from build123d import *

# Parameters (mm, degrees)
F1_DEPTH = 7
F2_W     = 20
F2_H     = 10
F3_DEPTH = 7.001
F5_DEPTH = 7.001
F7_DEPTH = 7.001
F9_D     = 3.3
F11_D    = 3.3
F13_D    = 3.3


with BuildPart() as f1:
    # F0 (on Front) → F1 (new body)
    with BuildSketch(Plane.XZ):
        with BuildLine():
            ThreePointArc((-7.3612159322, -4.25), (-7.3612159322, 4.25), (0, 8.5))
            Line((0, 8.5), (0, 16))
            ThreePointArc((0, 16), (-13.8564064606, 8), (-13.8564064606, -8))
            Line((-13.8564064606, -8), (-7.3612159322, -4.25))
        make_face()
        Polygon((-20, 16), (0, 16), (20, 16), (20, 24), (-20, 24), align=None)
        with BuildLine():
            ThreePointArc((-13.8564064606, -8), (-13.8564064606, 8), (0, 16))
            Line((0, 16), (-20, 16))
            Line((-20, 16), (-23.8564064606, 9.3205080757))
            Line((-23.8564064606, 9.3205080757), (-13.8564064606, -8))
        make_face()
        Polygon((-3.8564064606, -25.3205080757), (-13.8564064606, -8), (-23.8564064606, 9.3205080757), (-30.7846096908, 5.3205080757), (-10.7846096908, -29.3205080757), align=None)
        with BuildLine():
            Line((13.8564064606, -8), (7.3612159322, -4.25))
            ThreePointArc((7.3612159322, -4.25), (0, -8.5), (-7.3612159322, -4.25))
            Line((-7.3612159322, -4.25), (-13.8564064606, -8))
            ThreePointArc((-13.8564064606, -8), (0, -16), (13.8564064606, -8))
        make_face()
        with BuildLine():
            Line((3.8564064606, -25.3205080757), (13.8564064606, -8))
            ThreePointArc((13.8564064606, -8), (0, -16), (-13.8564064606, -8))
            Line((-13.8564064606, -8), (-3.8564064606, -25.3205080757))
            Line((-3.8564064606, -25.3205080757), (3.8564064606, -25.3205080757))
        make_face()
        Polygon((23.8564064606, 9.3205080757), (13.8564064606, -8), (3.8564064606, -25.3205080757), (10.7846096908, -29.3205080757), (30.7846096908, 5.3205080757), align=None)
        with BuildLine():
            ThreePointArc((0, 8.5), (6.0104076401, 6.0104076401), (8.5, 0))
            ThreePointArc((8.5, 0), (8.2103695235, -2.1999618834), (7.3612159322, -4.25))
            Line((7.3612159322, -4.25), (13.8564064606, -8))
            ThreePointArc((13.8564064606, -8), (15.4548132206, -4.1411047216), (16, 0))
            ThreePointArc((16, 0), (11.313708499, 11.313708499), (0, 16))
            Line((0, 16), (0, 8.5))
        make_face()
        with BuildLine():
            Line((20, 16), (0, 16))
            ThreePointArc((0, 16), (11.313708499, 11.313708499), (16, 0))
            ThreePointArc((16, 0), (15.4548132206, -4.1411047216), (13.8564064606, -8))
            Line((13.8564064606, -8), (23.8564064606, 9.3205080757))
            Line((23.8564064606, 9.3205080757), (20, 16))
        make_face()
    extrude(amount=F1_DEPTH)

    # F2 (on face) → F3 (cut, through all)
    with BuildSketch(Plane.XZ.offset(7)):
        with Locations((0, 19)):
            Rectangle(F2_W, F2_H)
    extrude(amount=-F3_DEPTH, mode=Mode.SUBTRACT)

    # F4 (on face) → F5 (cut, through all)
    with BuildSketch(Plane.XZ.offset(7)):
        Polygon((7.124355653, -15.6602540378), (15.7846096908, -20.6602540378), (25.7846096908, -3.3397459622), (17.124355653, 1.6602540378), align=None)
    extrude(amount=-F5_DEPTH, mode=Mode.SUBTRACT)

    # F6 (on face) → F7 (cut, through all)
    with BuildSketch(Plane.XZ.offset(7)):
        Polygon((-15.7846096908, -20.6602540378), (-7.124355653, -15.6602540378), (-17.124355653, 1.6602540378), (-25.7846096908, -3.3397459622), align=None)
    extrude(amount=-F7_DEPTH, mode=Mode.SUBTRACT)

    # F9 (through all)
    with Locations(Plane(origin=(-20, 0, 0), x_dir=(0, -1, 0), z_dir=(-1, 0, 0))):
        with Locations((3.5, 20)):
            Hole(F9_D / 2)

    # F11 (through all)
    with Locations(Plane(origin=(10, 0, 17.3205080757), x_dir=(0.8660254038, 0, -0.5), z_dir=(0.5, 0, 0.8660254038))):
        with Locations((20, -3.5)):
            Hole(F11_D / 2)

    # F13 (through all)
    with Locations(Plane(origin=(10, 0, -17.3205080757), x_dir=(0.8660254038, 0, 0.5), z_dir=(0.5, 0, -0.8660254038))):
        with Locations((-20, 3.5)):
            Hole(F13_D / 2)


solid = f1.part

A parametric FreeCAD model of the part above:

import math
import FreeCAD as App
import Part
import Sketcher

V = App.Vector
Q = App.Units.Quantity

doc = App.newDocument("Part")
body = doc.addObject("PartDesign::Body", "Body")

# Sketch on XZ plane
sketch1 = doc.addObject("Sketcher::SketchObject", "Sketch")
body.addObject(sketch1)
sketch1.AttachmentSupport = (doc.XZ_Plane, [""])
sketch1.MapMode = "FlatFace"
sketch1.addGeometry(Part.LineSegment(V(20, 16, 0), V(20, 24, 0)), False)
sketch1.addGeometry(Part.LineSegment(V(20, 24, 0), V(-20, 24, 0)), False)
sketch1.addGeometry(Part.LineSegment(V(-20, 24, 0), V(-20, 16, 0)), False)
sketch1.addGeometry(Part.LineSegment(V(-20, 16, 0), V(-23.9, 9.3, 0)), False)
sketch1.addGeometry(Part.LineSegment(V(-23.9, 9.3, 0), V(-30.8, 5.3, 0)), False)
sketch1.addGeometry(Part.LineSegment(V(-30.8, 5.3, 0), V(-10.8, -29.3, 0)), False)
sketch1.addGeometry(Part.LineSegment(V(-10.8, -29.3, 0), V(-3.9, -25.3, 0)), False)
sketch1.addGeometry(Part.LineSegment(V(-3.9, -25.3, 0), V(3.9, -25.3, 0)), False)
sketch1.addGeometry(Part.LineSegment(V(3.9, -25.3, 0), V(10.8, -29.3, 0)), False)
sketch1.addGeometry(Part.LineSegment(V(10.8, -29.3, 0), V(30.8, 5.3, 0)), False)
sketch1.addGeometry(Part.LineSegment(V(30.8, 5.3, 0), V(23.9, 9.3, 0)), False)
sketch1.addGeometry(Part.LineSegment(V(23.9, 9.3, 0), V(20, 16, 0)), False)
sketch1.addGeometry(Part.ArcOfCircle(Part.Circle(V(0, 0, 0), V(0, 0, 1), 8.5), math.radians(90), math.radians(210)), False)
sketch1.addGeometry(Part.ArcOfCircle(Part.Circle(V(0, 0, 0), V(0, 0, 1), 8.5), math.radians(0), math.radians(90)), False)
sketch1.addGeometry(Part.ArcOfCircle(Part.Circle(V(0, 0, 0), V(0, 0, 1), 8.5), math.radians(-30), math.radians(0)), False)
sketch1.addGeometry(Part.ArcOfCircle(Part.Circle(V(0, 0, 0), V(0, 0, 1), 8.5), math.radians(-150), math.radians(-30)), False)
sketch1.addConstraint(Sketcher.Constraint("Coincident", 0, 2, 1, 1))
sketch1.addConstraint(Sketcher.Constraint("Coincident", 1, 2, 2, 1))
sketch1.addConstraint(Sketcher.Constraint("Coincident", 2, 2, 3, 1))
sketch1.addConstraint(Sketcher.Constraint("Coincident", 3, 2, 4, 1))
sketch1.addConstraint(Sketcher.Constraint("Coincident", 4, 2, 5, 1))
sketch1.addConstraint(Sketcher.Constraint("Coincident", 5, 2, 6, 1))
sketch1.addConstraint(Sketcher.Constraint("Coincident", 6, 2, 7, 1))
sketch1.addConstraint(Sketcher.Constraint("Coincident", 7, 2, 8, 1))
sketch1.addConstraint(Sketcher.Constraint("Coincident", 8, 2, 9, 1))
sketch1.addConstraint(Sketcher.Constraint("Coincident", 9, 2, 10, 1))
sketch1.addConstraint(Sketcher.Constraint("Coincident", 10, 2, 11, 1))
sketch1.addConstraint(Sketcher.Constraint("Coincident", 11, 2, 0, 1))
sketch1.addConstraint(Sketcher.Constraint("Tangent", 12, 1, 13, 2))
sketch1.addConstraint(Sketcher.Constraint("Tangent", 13, 1, 14, 2))
sketch1.addConstraint(Sketcher.Constraint("Tangent", 14, 1, 15, 2))
sketch1.addConstraint(Sketcher.Constraint("Tangent", 15, 1, 12, 2))
sketch1.addConstraint(Sketcher.Constraint("Vertical", 0))
sketch1.addConstraint(Sketcher.Constraint("Horizontal", 1))
sketch1.addConstraint(Sketcher.Constraint("Vertical", 2))
sketch1.addConstraint(Sketcher.Constraint("Horizontal", 7))
sketch1.addConstraint(Sketcher.Constraint("Coincident", 12, 3, -1, 1))
sketch1.addConstraint(Sketcher.Constraint("Equal", 12, 13))
sketch1.addConstraint(Sketcher.Constraint("Symmetric", 5, 2, 8, 2, -2))
sketch1.addConstraint(Sketcher.Constraint("Symmetric", 4, 2, 9, 2, -2))
sketch1.addConstraint(Sketcher.Constraint("Symmetric", 3, 2, 10, 2, -2))
sketch1.addConstraint(Sketcher.Constraint("Symmetric", 2, 2, 11, 2, -2))
sketch1.addConstraint(Sketcher.Constraint("PointOnObject", 12, 1, -2))
sketch1.addConstraint(Sketcher.Constraint("PointOnObject", 13, 1, -1))
sketch1.addConstraint(Sketcher.Constraint("Perpendicular", 4, 5))
sketch1.addConstraint(Sketcher.Constraint("Perpendicular", 5, 6))
sketch1.addConstraint(Sketcher.Constraint("Perpendicular", 3, 8))
sketch1.addConstraint(Sketcher.Constraint("Perpendicular", 8, 9))
sketch1.addConstraint(Sketcher.Constraint("Horizontal", 14, 1, 15, 1))
sketch1.addConstraint(Sketcher.Constraint("Equal", 4, 6))
sketch1.addConstraint(Sketcher.Constraint("Radius", 12, Q("8.5 mm")))
sketch1.addConstraint(Sketcher.Constraint("DistanceX", 1, 2, 1, 1, Q("40 mm")))
sketch1.addConstraint(Sketcher.Constraint("DistanceY", 0, 1, 0, 2, Q("8 mm")))
sketch1.addConstraint(Sketcher.Constraint("Angle", 3, Q("-120 deg")))
sketch1.addConstraint(Sketcher.Constraint("Distance", 4, Q("8 mm")))
sketch1.addConstraint(Sketcher.Constraint("Distance", 5, Q("40 mm")))
sketch1.addConstraint(Sketcher.Constraint("DistanceY", -1, 1, 0, 2, Q("24 mm")))
sketch1.addConstraint(Sketcher.Constraint("DistanceY", 14, 1, -1, 1, Q("4.25 mm")))
sketch1.addConstraint(Sketcher.Constraint("DistanceX", 7, 1, 7, 2, Q("7.712813 mm")))
pad1 = doc.addObject("PartDesign::Pad", "Pad")
body.addObject(pad1)
pad1.Profile = sketch1
pad1.Length = 7

# Sketch on XZ plane
sketch2 = doc.addObject("Sketcher::SketchObject", "Sketch001")
body.addObject(sketch2)
sketch2.AttachmentSupport = (doc.XZ_Plane, [""])
sketch2.MapMode = "FlatFace"
sketch2.AttachmentOffset = App.Placement(V(0, 0, 7), App.Rotation())
sketch2.addGeometry(Part.LineSegment(V(-10, 24, 0), V(-10, 14, 0)), False)
sketch2.addGeometry(Part.LineSegment(V(-10, 14, 0), V(10, 14, 0)), False)
sketch2.addGeometry(Part.LineSegment(V(10, 14, 0), V(10, 24, 0)), False)
sketch2.addGeometry(Part.LineSegment(V(10, 24, 0), V(-10, 24, 0)), False)
sketch2.addConstraint(Sketcher.Constraint("Coincident", 0, 2, 1, 1))
sketch2.addConstraint(Sketcher.Constraint("Coincident", 1, 2, 2, 1))
sketch2.addConstraint(Sketcher.Constraint("Coincident", 2, 2, 3, 1))
sketch2.addConstraint(Sketcher.Constraint("Coincident", 3, 2, 0, 1))
sketch2.addConstraint(Sketcher.Constraint("Vertical", 0))
sketch2.addConstraint(Sketcher.Constraint("Horizontal", 1))
sketch2.addConstraint(Sketcher.Constraint("Vertical", 2))
sketch2.addConstraint(Sketcher.Constraint("Horizontal", 3))
sketch2.addConstraint(Sketcher.Constraint("DistanceX", 1, 1, 1, 2, Q("20 mm")))
sketch2.addConstraint(Sketcher.Constraint("DistanceY", 0, 2, 0, 1, Q("10 mm")))
sketch2.addConstraint(Sketcher.Constraint("DistanceX", 0, 2, -1, 1, Q("10 mm")))
sketch2.addConstraint(Sketcher.Constraint("DistanceY", -1, 1, 0, 2, Q("14 mm")))
pocket1 = doc.addObject("PartDesign::Pocket", "Pocket")
body.addObject(pocket1)
pocket1.Profile = sketch2
pocket1.Type = "ThroughAll"

# Sketch on XZ plane
sketch3 = doc.addObject("Sketcher::SketchObject", "Sketch002")
body.addObject(sketch3)
sketch3.AttachmentSupport = (doc.XZ_Plane, [""])
sketch3.MapMode = "FlatFace"
sketch3.AttachmentOffset = App.Placement(V(0, 0, 7), App.Rotation())
sketch3.addGeometry(Part.LineSegment(V(7, -16, 0), V(16, -21, 0)), False)
sketch3.addGeometry(Part.LineSegment(V(16, -21, 0), V(26, -3, 0)), False)
sketch3.addGeometry(Part.LineSegment(V(26, -3, 0), V(17, 2, 0)), False)
sketch3.addGeometry(Part.LineSegment(V(17, 2, 0), V(7, -16, 0)), False)
sketch3.addConstraint(Sketcher.Constraint("Coincident", 0, 2, 1, 1))
sketch3.addConstraint(Sketcher.Constraint("Coincident", 1, 2, 2, 1))
sketch3.addConstraint(Sketcher.Constraint("Coincident", 2, 2, 3, 1))
sketch3.addConstraint(Sketcher.Constraint("Coincident", 3, 2, 0, 1))
sketch3.addConstraint(Sketcher.Constraint("Perpendicular", 0, 1))
sketch3.addConstraint(Sketcher.Constraint("Perpendicular", 1, 2))
sketch3.addConstraint(Sketcher.Constraint("Perpendicular", 2, 3))
sketch3.addConstraint(Sketcher.Constraint("Angle", 0, Q("-30 deg")))
sketch3.addConstraint(Sketcher.Constraint("Distance", 0, Q("10 mm")))
sketch3.addConstraint(Sketcher.Constraint("Distance", 1, Q("20 mm")))
sketch3.addConstraint(Sketcher.Constraint("DistanceX", -1, 1, 0, 2, Q("15.78461 mm")))
sketch3.addConstraint(Sketcher.Constraint("DistanceY", 0, 2, -1, 1, Q("20.660254 mm")))
pocket2 = doc.addObject("PartDesign::Pocket", "Pocket001")
body.addObject(pocket2)
pocket2.Profile = sketch3
pocket2.Type = "ThroughAll"

# Sketch on XZ plane
sketch4 = doc.addObject("Sketcher::SketchObject", "Sketch003")
body.addObject(sketch4)
sketch4.AttachmentSupport = (doc.XZ_Plane, [""])
sketch4.MapMode = "FlatFace"
sketch4.AttachmentOffset = App.Placement(V(0, 0, 7), App.Rotation())
sketch4.addGeometry(Part.LineSegment(V(-16, -21, 0), V(-7, -16, 0)), False)
sketch4.addGeometry(Part.LineSegment(V(-7, -16, 0), V(-17, 2, 0)), False)
sketch4.addGeometry(Part.LineSegment(V(-17, 2, 0), V(-26, -3, 0)), False)
sketch4.addGeometry(Part.LineSegment(V(-26, -3, 0), V(-16, -21, 0)), False)
sketch4.addConstraint(Sketcher.Constraint("Coincident", 0, 2, 1, 1))
sketch4.addConstraint(Sketcher.Constraint("Coincident", 1, 2, 2, 1))
sketch4.addConstraint(Sketcher.Constraint("Coincident", 2, 2, 3, 1))
sketch4.addConstraint(Sketcher.Constraint("Coincident", 3, 2, 0, 1))
sketch4.addConstraint(Sketcher.Constraint("Perpendicular", 0, 1))
sketch4.addConstraint(Sketcher.Constraint("Perpendicular", 1, 2))
sketch4.addConstraint(Sketcher.Constraint("Perpendicular", 2, 3))
sketch4.addConstraint(Sketcher.Constraint("Angle", 0, Q("30 deg")))
sketch4.addConstraint(Sketcher.Constraint("Distance", 0, Q("10 mm")))
sketch4.addConstraint(Sketcher.Constraint("Distance", 1, Q("20 mm")))
sketch4.addConstraint(Sketcher.Constraint("DistanceX", 2, 2, -1, 1, Q("25.78461 mm")))
sketch4.addConstraint(Sketcher.Constraint("DistanceY", 0, 2, -1, 1, Q("15.660254 mm")))
pocket3 = doc.addObject("PartDesign::Pocket", "Pocket002")
body.addObject(pocket3)
pocket3.Profile = sketch4
pocket3.Type = "ThroughAll"

# Sketch on YZ plane
sketch5 = doc.addObject("Sketcher::SketchObject", "Sketch004")
body.addObject(sketch5)
sketch5.AttachmentSupport = (doc.YZ_Plane, [""])
sketch5.MapMode = "FlatFace"
sketch5.AttachmentOffset = App.Placement(V(0, 0, -20), App.Rotation())
sketch5.addGeometry(Part.Circle(V(-3.5, 20, 0), V(0, 0, 1), 1.6), False)
sketch5.addConstraint(Sketcher.Constraint("Diameter", 0, Q("3.3 mm")))
sketch5.addConstraint(Sketcher.Constraint("DistanceY", -1, 1, 0, 3, Q("20 mm")))
sketch5.addConstraint(Sketcher.Constraint("DistanceX", 0, 3, -1, 1, Q("3.5 mm")))
doc.recompute()
hole = doc.addObject("PartDesign::Hole", "Hole")
body.addObject(hole)
hole.Profile = sketch5
hole.ThreadType = "None"
hole.Diameter = 3.3
hole.DepthType = "ThroughAll"
hole.Reversed = True

# Sketch on an angled plane
sketch6 = doc.addObject("Sketcher::SketchObject", "Sketch005")
body.addObject(sketch6)
sketch6.Placement = App.Placement(V(10, 0, 17.320508), App.Rotation(V(0.866025404, 0, -0.5), V(0, 1, 0), V(0.5, 0, 0.866025404), "ZXY"))
sketch6.addGeometry(Part.Circle(V(20, -3.5, 0), V(0, 0, 1), 1.6), False)
sketch6.addConstraint(Sketcher.Constraint("Diameter", 0, Q("3.3 mm")))
sketch6.addConstraint(Sketcher.Constraint("DistanceX", -1, 1, 0, 3, Q("20 mm")))
sketch6.addConstraint(Sketcher.Constraint("DistanceY", 0, 3, -1, 1, Q("3.5 mm")))
doc.recompute()
hole2 = doc.addObject("PartDesign::Hole", "Hole001")
body.addObject(hole2)
hole2.Profile = sketch6
hole2.ThreadType = "None"
hole2.Diameter = 3.3
hole2.DepthType = "ThroughAll"

# Sketch on an angled plane
sketch7 = doc.addObject("Sketcher::SketchObject", "Sketch006")
body.addObject(sketch7)
sketch7.Placement = App.Placement(V(10, 0, -17.320508), App.Rotation(V(0.866025404, 0, 0.5), V(0, -1, 0), V(0.5, 0, -0.866025404), "ZXY"))
sketch7.addGeometry(Part.Circle(V(-20, 3.5, 0), V(0, 0, 1), 1.6), False)
sketch7.addConstraint(Sketcher.Constraint("Diameter", 0, Q("3.3 mm")))
sketch7.addConstraint(Sketcher.Constraint("DistanceX", 0, 3, -1, 1, Q("20 mm")))
sketch7.addConstraint(Sketcher.Constraint("DistanceY", -1, 1, 0, 3, Q("3.5 mm")))
doc.recompute()
hole3 = doc.addObject("PartDesign::Hole", "Hole002")
body.addObject(hole3)
hole3.Profile = sketch7
hole3.ThreadType = "None"
hole3.Diameter = 3.3
hole3.DepthType = "ThroughAll"

doc.recompute()
